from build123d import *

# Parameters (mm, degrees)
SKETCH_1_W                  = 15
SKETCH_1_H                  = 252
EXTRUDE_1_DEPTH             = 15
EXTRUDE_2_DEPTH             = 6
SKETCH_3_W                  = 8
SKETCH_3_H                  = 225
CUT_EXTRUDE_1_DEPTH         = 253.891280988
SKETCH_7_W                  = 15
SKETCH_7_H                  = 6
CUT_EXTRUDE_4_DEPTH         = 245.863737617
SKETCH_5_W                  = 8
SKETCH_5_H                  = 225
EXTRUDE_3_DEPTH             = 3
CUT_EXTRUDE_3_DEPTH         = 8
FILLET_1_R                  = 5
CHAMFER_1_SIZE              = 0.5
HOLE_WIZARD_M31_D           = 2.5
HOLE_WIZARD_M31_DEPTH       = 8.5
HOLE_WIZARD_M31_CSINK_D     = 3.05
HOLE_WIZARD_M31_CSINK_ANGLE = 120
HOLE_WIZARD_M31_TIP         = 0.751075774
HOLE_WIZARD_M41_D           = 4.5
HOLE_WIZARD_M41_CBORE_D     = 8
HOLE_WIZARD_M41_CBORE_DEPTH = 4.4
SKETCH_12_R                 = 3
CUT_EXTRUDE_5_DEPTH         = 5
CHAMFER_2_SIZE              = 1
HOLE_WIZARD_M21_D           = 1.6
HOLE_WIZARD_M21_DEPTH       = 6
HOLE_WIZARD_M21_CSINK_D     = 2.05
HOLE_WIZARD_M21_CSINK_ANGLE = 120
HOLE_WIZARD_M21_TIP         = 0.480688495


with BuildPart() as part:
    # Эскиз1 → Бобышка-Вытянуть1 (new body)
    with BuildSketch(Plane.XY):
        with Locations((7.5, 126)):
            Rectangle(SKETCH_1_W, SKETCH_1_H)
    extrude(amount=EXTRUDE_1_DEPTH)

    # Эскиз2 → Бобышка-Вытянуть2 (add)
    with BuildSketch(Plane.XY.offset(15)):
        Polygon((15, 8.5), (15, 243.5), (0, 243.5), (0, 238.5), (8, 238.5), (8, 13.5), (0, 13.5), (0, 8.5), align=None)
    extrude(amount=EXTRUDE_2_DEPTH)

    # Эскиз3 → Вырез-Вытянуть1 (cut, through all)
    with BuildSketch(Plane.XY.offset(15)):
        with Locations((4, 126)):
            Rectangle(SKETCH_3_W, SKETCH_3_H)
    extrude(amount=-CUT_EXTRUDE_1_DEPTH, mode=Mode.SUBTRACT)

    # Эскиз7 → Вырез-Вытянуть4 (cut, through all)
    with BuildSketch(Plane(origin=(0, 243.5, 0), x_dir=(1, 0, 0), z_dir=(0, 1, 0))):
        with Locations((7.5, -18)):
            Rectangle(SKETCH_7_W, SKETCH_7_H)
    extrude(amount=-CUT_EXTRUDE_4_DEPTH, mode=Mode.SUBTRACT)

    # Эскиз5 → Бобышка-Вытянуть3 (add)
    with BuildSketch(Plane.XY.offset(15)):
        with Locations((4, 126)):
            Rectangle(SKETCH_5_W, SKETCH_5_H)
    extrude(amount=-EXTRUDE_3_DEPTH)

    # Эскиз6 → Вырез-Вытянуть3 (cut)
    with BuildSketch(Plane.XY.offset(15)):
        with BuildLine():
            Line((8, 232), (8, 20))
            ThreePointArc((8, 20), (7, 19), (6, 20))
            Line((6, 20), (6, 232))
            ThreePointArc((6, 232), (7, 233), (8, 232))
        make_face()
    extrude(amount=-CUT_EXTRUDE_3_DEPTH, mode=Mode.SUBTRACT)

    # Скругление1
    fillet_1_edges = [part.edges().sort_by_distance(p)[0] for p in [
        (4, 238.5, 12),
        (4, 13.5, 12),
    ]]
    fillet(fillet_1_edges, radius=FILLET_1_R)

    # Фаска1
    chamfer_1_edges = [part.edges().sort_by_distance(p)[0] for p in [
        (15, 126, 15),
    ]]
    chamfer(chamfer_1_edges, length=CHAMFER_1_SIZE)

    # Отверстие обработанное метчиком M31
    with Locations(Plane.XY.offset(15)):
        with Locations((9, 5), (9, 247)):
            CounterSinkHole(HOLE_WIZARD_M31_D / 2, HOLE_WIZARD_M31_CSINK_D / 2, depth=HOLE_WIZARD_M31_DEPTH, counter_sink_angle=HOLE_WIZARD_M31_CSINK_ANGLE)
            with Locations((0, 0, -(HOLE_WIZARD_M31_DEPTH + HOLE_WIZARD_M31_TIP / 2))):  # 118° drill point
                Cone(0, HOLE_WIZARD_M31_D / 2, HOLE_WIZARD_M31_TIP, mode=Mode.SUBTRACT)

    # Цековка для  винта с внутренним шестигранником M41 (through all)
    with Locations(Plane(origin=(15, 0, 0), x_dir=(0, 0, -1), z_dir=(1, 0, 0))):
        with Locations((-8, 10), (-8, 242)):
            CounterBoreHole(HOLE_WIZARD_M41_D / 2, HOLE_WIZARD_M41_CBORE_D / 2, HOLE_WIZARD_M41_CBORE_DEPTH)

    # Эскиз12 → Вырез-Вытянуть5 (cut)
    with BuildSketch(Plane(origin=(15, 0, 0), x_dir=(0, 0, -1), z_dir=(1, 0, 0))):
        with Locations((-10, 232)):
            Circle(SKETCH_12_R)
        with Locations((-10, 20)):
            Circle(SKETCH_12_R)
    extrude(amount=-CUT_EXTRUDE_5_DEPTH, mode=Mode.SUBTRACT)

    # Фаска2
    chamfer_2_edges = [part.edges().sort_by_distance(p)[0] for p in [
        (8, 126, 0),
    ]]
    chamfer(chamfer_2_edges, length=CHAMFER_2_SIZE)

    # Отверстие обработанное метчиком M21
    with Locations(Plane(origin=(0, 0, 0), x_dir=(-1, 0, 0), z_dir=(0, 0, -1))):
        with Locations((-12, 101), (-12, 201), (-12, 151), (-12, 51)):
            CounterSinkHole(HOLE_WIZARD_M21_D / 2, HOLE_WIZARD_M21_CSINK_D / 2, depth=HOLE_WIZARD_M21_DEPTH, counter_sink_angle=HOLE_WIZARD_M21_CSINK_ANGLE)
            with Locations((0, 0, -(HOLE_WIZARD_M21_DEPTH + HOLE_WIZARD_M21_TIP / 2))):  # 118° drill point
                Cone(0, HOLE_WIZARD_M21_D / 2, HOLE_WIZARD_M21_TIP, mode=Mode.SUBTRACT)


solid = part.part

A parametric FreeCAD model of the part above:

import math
import FreeCAD as App
import Part
import Sketcher
Q = App.Units.Quantity


def edges_at(feature, points):
    """Names of the edges that pass closest to the given points."""
    edges = feature.Shape.Edges
    near = lambda p: min(range(len(edges)), key=lambda i: edges[i].distToShape(Part.Vertex(*p))[0])
    return sorted({f"Edge{near(p) + 1}" for p in points})

doc = App.newDocument("Part")
body = doc.addObject("PartDesign::Body", "Body")

sketch1 = body.newObject("Sketcher::SketchObject", "Sketch")
sketch1.AttachmentSupport = (doc.getObject("XY_Plane"), [""])
sketch1.MapMode = "FlatFace"
sketch1.addGeometry([
    Part.LineSegment(App.Vector(0, 252, 0), App.Vector(0, 0, 0)),
    Part.LineSegment(App.Vector(0, 0, 0), App.Vector(15, 0, 0)),
    Part.LineSegment(App.Vector(15, 0, 0), App.Vector(15, 252, 0)),
    Part.LineSegment(App.Vector(15, 252, 0), App.Vector(0, 252, 0)),
], False)
sketch1.addConstraint([
    Sketcher.Constraint("Coincident", 0, 2, 1, 1),
    Sketcher.Constraint("Coincident", 1, 2, 2, 1),
    Sketcher.Constraint("Coincident", 2, 2, 3, 1),
    Sketcher.Constraint("Coincident", 3, 2, 0, 1),
    Sketcher.Constraint("Vertical", 0),
    Sketcher.Constraint("Horizontal", 1),
    Sketcher.Constraint("Vertical", 2),
    Sketcher.Constraint("Horizontal", 3),
    Sketcher.Constraint("Coincident", 0, 2, -1, 1),
    Sketcher.Constraint("DistanceX", 1, 1, 1, 2, Q("15 mm")),
    Sketcher.Constraint("DistanceY", 0, 2, 0, 1, Q("252 mm")),
])
pad1 = body.newObject("PartDesign::Pad", "Pad")
pad1.Profile = sketch1
pad1.Length = 15

sketch2 = body.newObject("Sketcher::SketchObject", "Sketch001")
sketch2.AttachmentSupport = (doc.getObject("XY_Plane"), [""])
sketch2.MapMode = "FlatFace"
sketch2.AttachmentOffset = App.Placement(App.Vector(0, 0, 15), App.Rotation())
sketch2.addGeometry([
    Part.LineSegment(App.Vector(15, 8.5, 0), App.Vector(15, 243.5, 0)),
    Part.LineSegment(App.Vector(15, 243.5, 0), App.Vector(0, 243.5, 0)),
    Part.LineSegment(App.Vector(0, 243.5, 0), App.Vector(0, 238.5, 0)),
    Part.LineSegment(App.Vector(0, 238.5, 0), App.Vector(8, 238.5, 0)),
    Part.LineSegment(App.Vector(8, 238.5, 0), App.Vector(8, 13.5, 0)),
    Part.LineSegment(App.Vector(8, 13.5, 0), App.Vector(0, 13.5, 0)),
    Part.LineSegment(App.Vector(0, 13.5, 0), App.Vector(0, 8.5, 0)),
    Part.LineSegment(App.Vector(0, 8.5, 0), App.Vector(15, 8.5, 0)),
], False)
sketch2.addConstraint([
    Sketcher.Constraint("Coincident", 0, 2, 1, 1),
    Sketcher.Constraint("Coincident", 1, 2, 2, 1),
    Sketcher.Constraint("Coincident", 2, 2, 3, 1),
    Sketcher.Constraint("Coincident", 3, 2, 4, 1),
    Sketcher.Constraint("Coincident", 4, 2, 5, 1),
    Sketcher.Constraint("Coincident", 5, 2, 6, 1),
    Sketcher.Constraint("Coincident", 6, 2, 7, 1),
    Sketcher.Constraint("Coincident", 7, 2, 0, 1),
    Sketcher.Constraint("Vertical", 0),
    Sketcher.Constraint("Horizontal", 1),
    Sketcher.Constraint("Vertical", 2),
    Sketcher.Constraint("Horizontal", 3),
    Sketcher.Constraint("Vertical", 4),
    Sketcher.Constraint("Horizontal", 5),
    Sketcher.Constraint("Vertical", 6),
    Sketcher.Constraint("Horizontal", 7),
    Sketcher.Constraint("PointOnObject", 1, 2, -2),
    Sketcher.Constraint("PointOnObject", 5, 2, -2),
    Sketcher.Constraint("Equal", 2, 6),
    Sketcher.Constraint("DistanceX", 1, 2, 1, 1, Q("15 mm")),
    Sketcher.Constraint("DistanceX", 3, 1, 3, 2, Q("8 mm")),
    Sketcher.Constraint("DistanceY", 0, 1, 0, 2, Q("235 mm")),
    Sketcher.Constraint("DistanceY", 2, 2, 2, 1, Q("5 mm")),
    Sketcher.Constraint("DistanceY", -1, 1, 0, 2, Q("243.5 mm")),
])
pad2 = body.newObject("PartDesign::Pad", "Pad001")
pad2.Profile = sketch2
pad2.Length = 6

sketch3 = body.newObject("Sketcher::SketchObject", "Sketch002")
sketch3.AttachmentSupport = (doc.getObject("XY_Plane"), [""])
sketch3.MapMode = "FlatFace"
sketch3.AttachmentOffset = App.Placement(App.Vector(0, 0, 15), App.Rotation())
sketch3.addGeometry([
    Part.LineSegment(App.Vector(0, 238.5, 0), App.Vector(0, 13.5, 0)),
    Part.LineSegment(App.Vector(0, 13.5, 0), App.Vector(8, 13.5, 0)),
    Part.LineSegment(App.Vector(8, 13.5, 0), App.Vector(8, 238.5, 0)),
    Part.LineSegment(App.Vector(8, 238.5, 0), App.Vector(0, 238.5, 0)),
], False)
sketch3.addConstraint([
    Sketcher.Constraint("Coincident", 0, 2, 1, 1),
    Sketcher.Constraint("Coincident", 1, 2, 2, 1),
    Sketcher.Constraint("Coincident", 2, 2, 3, 1),
    Sketcher.Constraint("Coincident", 3, 2, 0, 1),
    Sketcher.Constraint("Vertical", 0),
    Sketcher.Constraint("Horizontal", 1),
    Sketcher.Constraint("Vertical", 2),
    Sketcher.Constraint("Horizontal", 3),
    Sketcher.Constraint("PointOnObject", 0, 2, -2),
    Sketcher.Constraint("DistanceX", 1, 1, 1, 2, Q("8 mm")),
    Sketcher.Constraint("DistanceY", 0, 2, 0, 1, Q("225 mm")),
    Sketcher.Constraint("DistanceY", -1, 1, 0, 2, Q("13.5 mm")),
])
pocket1 = body.newObject("PartDesign::Pocket", "Pocket")
pocket1.Profile = sketch3
pocket1.Type = "ThroughAll"

sketch4 = body.newObject("Sketcher::SketchObject", "Sketch003")
sketch4.AttachmentSupport = (doc.getObject("XZ_Plane"), [""])
sketch4.MapMode = "FlatFace"
sketch4.AttachmentOffset = App.Placement(App.Vector(0, 0, -243.5), App.Rotation())
sketch4.addGeometry([
    Part.LineSegment(App.Vector(0, 15, 0), App.Vector(0, 21, 0)),
    Part.LineSegment(App.Vector(0, 21, 0), App.Vector(15, 21, 0)),
    Part.LineSegment(App.Vector(15, 21, 0), App.Vector(15, 15, 0)),
    Part.LineSegment(App.Vector(15, 15, 0), App.Vector(0, 15, 0)),
], False)
sketch4.addConstraint([
    Sketcher.Constraint("Coincident", 0, 2, 1, 1),
    Sketcher.Constraint("Coincident", 1, 2, 2, 1),
    Sketcher.Constraint("Coincident", 2, 2, 3, 1),
    Sketcher.Constraint("Coincident", 3, 2, 0, 1),
    Sketcher.Constraint("Vertical", 0),
    Sketcher.Constraint("Horizontal", 1),
    Sketcher.Constraint("Vertical", 2),
    Sketcher.Constraint("Horizontal", 3),
    Sketcher.Constraint("PointOnObject", 0, 2, -2),
    Sketcher.Constraint("DistanceX", 1, 1, 1, 2, Q("15 mm")),
    Sketcher.Constraint("DistanceY", 0, 1, 0, 2, Q("6 mm")),
    Sketcher.Constraint("DistanceY", -1, 1, 0, 2, Q("21 mm")),
])
pocket2 = body.newObject("PartDesign::Pocket", "Pocket001")
pocket2.Profile = sketch4
pocket2.Type = "ThroughAll"
pocket2.Reversed = True

sketch5 = body.newObject("Sketcher::SketchObject", "Sketch004")
sketch5.AttachmentSupport = (doc.getObject("XY_Plane"), [""])
sketch5.MapMode = "FlatFace"
sketch5.AttachmentOffset = App.Placement(App.Vector(0, 0, 15), App.Rotation())
sketch5.addGeometry([
    Part.LineSegment(App.Vector(0, 238.5, 0), App.Vector(0, 13.5, 0)),
    Part.LineSegment(App.Vector(0, 13.5, 0), App.Vector(8, 13.5, 0)),
    Part.LineSegment(App.Vector(8, 13.5, 0), App.Vector(8, 238.5, 0)),
    Part.LineSegment(App.Vector(8, 238.5, 0), App.Vector(0, 238.5, 0)),
], False)
sketch5.addConstraint([
    Sketcher.Constraint("Coincident", 0, 2, 1, 1),
    Sketcher.Constraint("Coincident", 1, 2, 2, 1),
    Sketcher.Constraint("Coincident", 2, 2, 3, 1),
    Sketcher.Constraint("Coincident", 3, 2, 0, 1),
    Sketcher.Constraint("Vertical", 0),
    Sketcher.Constraint("Horizontal", 1),
    Sketcher.Constraint("Vertical", 2),
    Sketcher.Constraint("Horizontal", 3),
    Sketcher.Constraint("PointOnObject", 0, 2, -2),
    Sketcher.Constraint("DistanceX", 1, 1, 1, 2, Q("8 mm")),
    Sketcher.Constraint("DistanceY", 0, 2, 0, 1, Q("225 mm")),
    Sketcher.Constraint("DistanceY", -1, 1, 0, 2, Q("13.5 mm")),
])
pad3 = body.newObject("PartDesign::Pad", "Pad002")
pad3.Profile = sketch5
pad3.Length = 3
pad3.Reversed = True

sketch6 = body.newObject("Sketcher::SketchObject", "Sketch005")
sketch6.AttachmentSupport = (doc.getObject("XY_Plane"), [""])
sketch6.MapMode = "FlatFace"
sketch6.AttachmentOffset = App.Placement(App.Vector(0, 0, 15), App.Rotation())
sketch6.addGeometry([
    Part.LineSegment(App.Vector(8, 20, 0), App.Vector(8, 232, 0)),
    Part.ArcOfCircle(Part.Circle(App.Vector(7, 232, 0), App.Vector(0, 0, 1), 1), math.radians(0), math.radians(180)),
    Part.LineSegment(App.Vector(6, 232, 0), App.Vector(6, 20, 0)),
    Part.ArcOfCircle(Part.Circle(App.Vector(7, 20, 0), App.Vector(0, 0, 1), 1), math.radians(180), math.radians(360)),
], False)
sketch6.addConstraint([
    Sketcher.Constraint("Tangent", 0, 2, 1, 1),
    Sketcher.Constraint("Tangent", 1, 2, 2, 1),
    Sketcher.Constraint("Tangent", 2, 2, 3, 1),
    Sketcher.Constraint("Tangent", 3, 2, 0, 1),
    Sketcher.Constraint("Vertical", 0),
    Sketcher.Constraint("Vertical", 2),
    Sketcher.Constraint("Radius", 1, Q("1 mm")),
    Sketcher.Constraint("DistanceY", 0, 1, 0, 2, Q("212 mm")),
    Sketcher.Constraint("DistanceX", -1, 1, 1, 3, Q("7 mm")),
    Sketcher.Constraint("DistanceY", -1, 1, 1, 3, Q("232 mm")),
])
pocket3 = body.newObject("PartDesign::Pocket", "Pocket002")
pocket3.Profile = sketch6
pocket3.Length = 8
doc.recompute()

fillet = body.newObject("PartDesign::Fillet", "Fillet")
fillet.Base = (pocket3, edges_at(pocket3, [(4, 238.5, 12), (4, 13.5, 12)]))
fillet.Radius = 5
doc.recompute()

chamfer = body.newObject("PartDesign::Chamfer", "Chamfer")
chamfer.Base = (fillet, edges_at(fillet, [(15, 126, 15)]))
chamfer.Size = 0.5

sketch7 = body.newObject("Sketcher::SketchObject", "Sketch006")
sketch7.AttachmentSupport = (doc.getObject("XY_Plane"), [""])
sketch7.MapMode = "FlatFace"
sketch7.AttachmentOffset = App.Placement(App.Vector(0, 0, 15), App.Rotation())
sketch7.addGeometry([
    Part.Circle(App.Vector(9, 5, 0), App.Vector(0, 0, 1), 1.25),
    Part.Circle(App.Vector(9, 247, 0), App.Vector(0, 0, 1), 1.25),
], False)
sketch7.addConstraint([
    Sketcher.Constraint("Equal", 0, 1),
    Sketcher.Constraint("Vertical", 0, 3, 1, 3),
    Sketcher.Constraint("Diameter", 0, Q("2.5 mm")),
    Sketcher.Constraint("DistanceX", -1, 1, 0, 3, Q("9 mm")),
    Sketcher.Constraint("DistanceY", -1, 1, 0, 3, Q("5 mm")),
    Sketcher.Constraint("DistanceY", -1, 1, 1, 3, Q("247 mm")),
])
doc.recompute()
hole = body.newObject("PartDesign::Hole", "Hole")
hole.Profile = sketch7
hole.ThreadType = "None"
hole.Diameter = 2.5
hole.DepthType = "Dimension"
hole.Depth = 8.5
hole.DrillPoint = "Angled"
hole.DrillPointAngle = 118
hole.HoleCutType = "Countersink"
hole.HoleCutDiameter = 3.05
hole.HoleCutCountersinkAngle = 120

sketch8 = body.newObject("Sketcher::SketchObject", "Sketch007")
sketch8.AttachmentSupport = (doc.getObject("YZ_Plane"), [""])
sketch8.MapMode = "FlatFace"
sketch8.AttachmentOffset = App.Placement(App.Vector(0, 0, 15), App.Rotation())
sketch8.addGeometry([
    Part.Circle(App.Vector(10, 8, 0), App.Vector(0, 0, 1), 2.25),
    Part.Circle(App.Vector(242, 8, 0), App.Vector(0, 0, 1), 2.25),
], False)
sketch8.addConstraint([
    Sketcher.Constraint("Equal", 0, 1),
    Sketcher.Constraint("Horizontal", 0, 3, 1, 3),
    Sketcher.Constraint("Diameter", 0, Q("4.5 mm")),
    Sketcher.Constraint("DistanceX", -1, 1, 0, 3, Q("10 mm")),
    Sketcher.Constraint("DistanceY", -1, 1, 0, 3, Q("8 mm")),
    Sketcher.Constraint("DistanceX", -1, 1, 1, 3, Q("242 mm")),
])
doc.recompute()
hole2 = body.newObject("PartDesign::Hole", "Hole001")
hole2.Profile = sketch8
hole2.ThreadType = "None"
hole2.Diameter = 4.5
hole2.DepthType = "ThroughAll"
hole2.HoleCutType = "Counterbore"
hole2.HoleCutDiameter = 8
hole2.HoleCutDepth = 4.4

sketch9 = body.newObject("Sketcher::SketchObject", "Sketch008")
sketch9.AttachmentSupport = (doc.getObject("YZ_Plane"), [""])
sketch9.MapMode = "FlatFace"
sketch9.AttachmentOffset = App.Placement(App.Vector(0, 0, 15), App.Rotation())
sketch9.addGeometry([
    Part.Circle(App.Vector(232, 10, 0), App.Vector(0, 0, 1), 3),
    Part.Circle(App.Vector(20, 10, 0), App.Vector(0, 0, 1), 3),
], False)
sketch9.addConstraint([
    Sketcher.Constraint("Equal", 0, 1),
    Sketcher.Constraint("Horizontal", 0, 3, 1, 3),
    Sketcher.Constraint("Diameter", 0, Q("6 mm")),
    Sketcher.Constraint("DistanceX", -1, 1, 0, 3, Q("232 mm")),
    Sketcher.Constraint("DistanceY", -1, 1, 0, 3, Q("10 mm")),
    Sketcher.Constraint("DistanceX", -1, 1, 1, 3, Q("20 mm")),
])
pocket4 = body.newObject("PartDesign::Pocket", "Pocket003")
pocket4.Profile = sketch9
pocket4.Length = 5
doc.recompute()

chamfer2 = body.newObject("PartDesign::Chamfer", "Chamfer001")
chamfer2.Base = (pocket4, edges_at(pocket4, [(8, 126, 0)]))
chamfer2.Size = 1

sketch10 = body.newObject("Sketcher::SketchObject", "Sketch009")
sketch10.AttachmentSupport = (doc.getObject("XY_Plane"), [""])
sketch10.MapMode = "FlatFace"
sketch10.addGeometry([
    Part.Circle(App.Vector(12, 101, 0), App.Vector(0, 0, 1), 0.8),
    Part.Circle(App.Vector(12, 201, 0), App.Vector(0, 0, 1), 0.8),
    Part.Circle(App.Vector(12, 151, 0), App.Vector(0, 0, 1), 0.8),
    Part.Circle(App.Vector(12, 51, 0), App.Vector(0, 0, 1), 0.8),
], False)
sketch10.addConstraint([
    Sketcher.Constraint("Equal", 0, 1),
    Sketcher.Constraint("Equal", 1, 2),
    Sketcher.Constraint("Equal", 2, 3),
    Sketcher.Constraint("Vertical", 0, 3, 1, 3),
    Sketcher.Constraint("Vertical", 1, 3, 2, 3),
    Sketcher.Constraint("Vertical", 2, 3, 3, 3),
    Sketcher.Constraint("Diameter", 0, Q("1.6 mm")),
    Sketcher.Constraint("DistanceX", -1, 1, 0, 3, Q("12 mm")),
    Sketcher.Constraint("DistanceY", -1, 1, 0, 3, Q("101 mm")),
    Sketcher.Constraint("DistanceY", -1, 1, 1, 3, Q("201 mm")),
    Sketcher.Constraint("DistanceY", -1, 1, 2, 3, Q("151 mm")),
    Sketcher.Constraint("DistanceY", -1, 1, 3, 3, Q("51 mm")),
])
doc.recompute()
hole3 = body.newObject("PartDesign::Hole", "Hole002")
hole3.Profile = sketch10
hole3.ThreadType = "None"
hole3.Diameter = 1.6
hole3.DepthType = "Dimension"
hole3.Depth = 6
hole3.DrillPoint = "Angled"
hole3.DrillPointAngle = 118
hole3.HoleCutType = "Countersink"
hole3.HoleCutDiameter = 2.05
hole3.HoleCutCountersinkAngle = 120
hole3.Reversed = True

doc.recompute()
